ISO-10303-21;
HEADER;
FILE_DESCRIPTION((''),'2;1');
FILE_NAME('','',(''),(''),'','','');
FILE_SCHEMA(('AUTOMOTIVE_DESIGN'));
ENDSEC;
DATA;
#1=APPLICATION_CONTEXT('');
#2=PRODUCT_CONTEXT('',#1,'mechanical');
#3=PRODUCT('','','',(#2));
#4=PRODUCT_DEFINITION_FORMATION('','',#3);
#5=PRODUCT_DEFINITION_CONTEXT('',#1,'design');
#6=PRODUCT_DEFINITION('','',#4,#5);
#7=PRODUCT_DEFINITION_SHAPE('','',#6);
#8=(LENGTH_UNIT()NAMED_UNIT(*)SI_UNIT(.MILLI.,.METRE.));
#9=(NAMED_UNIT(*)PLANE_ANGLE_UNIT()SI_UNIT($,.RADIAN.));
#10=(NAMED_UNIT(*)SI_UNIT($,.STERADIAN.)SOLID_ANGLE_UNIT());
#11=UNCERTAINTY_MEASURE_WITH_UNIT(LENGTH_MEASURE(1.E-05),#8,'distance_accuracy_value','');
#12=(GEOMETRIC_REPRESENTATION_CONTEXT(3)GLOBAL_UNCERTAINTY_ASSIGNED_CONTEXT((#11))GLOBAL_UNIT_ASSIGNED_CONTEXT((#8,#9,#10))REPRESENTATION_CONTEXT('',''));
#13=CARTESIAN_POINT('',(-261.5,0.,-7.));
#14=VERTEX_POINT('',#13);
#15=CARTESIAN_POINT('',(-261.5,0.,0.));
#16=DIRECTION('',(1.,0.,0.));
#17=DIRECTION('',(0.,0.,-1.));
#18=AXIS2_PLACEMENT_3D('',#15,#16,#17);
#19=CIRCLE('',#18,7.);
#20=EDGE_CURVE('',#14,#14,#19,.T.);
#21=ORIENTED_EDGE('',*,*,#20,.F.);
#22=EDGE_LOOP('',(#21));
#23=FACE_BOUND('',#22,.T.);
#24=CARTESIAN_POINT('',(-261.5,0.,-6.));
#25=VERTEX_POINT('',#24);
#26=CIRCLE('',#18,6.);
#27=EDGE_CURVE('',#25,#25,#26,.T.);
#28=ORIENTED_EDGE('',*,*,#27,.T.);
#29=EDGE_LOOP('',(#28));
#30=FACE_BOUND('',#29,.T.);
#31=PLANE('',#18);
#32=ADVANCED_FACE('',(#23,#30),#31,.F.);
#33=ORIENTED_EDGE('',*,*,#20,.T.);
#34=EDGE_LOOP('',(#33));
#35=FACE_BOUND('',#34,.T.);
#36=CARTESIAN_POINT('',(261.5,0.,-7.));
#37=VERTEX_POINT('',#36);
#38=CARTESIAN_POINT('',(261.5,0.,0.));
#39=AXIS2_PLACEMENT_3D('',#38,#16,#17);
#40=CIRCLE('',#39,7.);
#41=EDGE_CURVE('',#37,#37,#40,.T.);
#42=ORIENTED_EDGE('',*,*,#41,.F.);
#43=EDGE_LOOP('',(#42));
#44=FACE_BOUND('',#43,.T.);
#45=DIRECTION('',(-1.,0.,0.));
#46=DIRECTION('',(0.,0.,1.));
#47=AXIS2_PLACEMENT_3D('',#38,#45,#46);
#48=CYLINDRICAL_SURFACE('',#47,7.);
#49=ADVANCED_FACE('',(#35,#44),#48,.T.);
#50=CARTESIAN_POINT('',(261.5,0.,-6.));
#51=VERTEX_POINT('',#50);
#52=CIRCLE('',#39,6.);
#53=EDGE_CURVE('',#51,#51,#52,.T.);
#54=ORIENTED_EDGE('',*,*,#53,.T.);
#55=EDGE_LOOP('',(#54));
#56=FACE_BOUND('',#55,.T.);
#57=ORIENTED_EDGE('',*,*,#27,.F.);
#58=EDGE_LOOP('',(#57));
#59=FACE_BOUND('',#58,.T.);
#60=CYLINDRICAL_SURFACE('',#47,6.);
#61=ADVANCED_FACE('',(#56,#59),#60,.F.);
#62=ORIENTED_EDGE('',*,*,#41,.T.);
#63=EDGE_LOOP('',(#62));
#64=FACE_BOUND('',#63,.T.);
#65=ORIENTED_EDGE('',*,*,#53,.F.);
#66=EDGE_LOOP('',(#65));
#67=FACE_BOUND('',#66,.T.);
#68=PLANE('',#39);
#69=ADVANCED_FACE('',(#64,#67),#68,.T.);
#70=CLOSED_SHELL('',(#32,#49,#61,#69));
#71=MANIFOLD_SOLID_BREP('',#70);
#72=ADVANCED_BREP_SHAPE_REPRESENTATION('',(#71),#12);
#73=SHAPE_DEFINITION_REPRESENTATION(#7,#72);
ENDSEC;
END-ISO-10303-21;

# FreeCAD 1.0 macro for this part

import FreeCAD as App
import Part
import Sketcher
Q = App.Units.Quantity

doc = App.newDocument("Part")
body = doc.addObject("PartDesign::Body", "Body")

sketch1 = doc.addObject("Sketcher::SketchObject", "Sketch")
body.addObject(sketch1)
sketch1.AttachmentSupport = (doc.YZ_Plane, [""])
sketch1.MapMode = "FlatFace"
sketch1.addGeometry(Part.Circle(App.Vector(0, 0, 0), App.Vector(0, 0, 1), 7), False)
sketch1.addGeometry(Part.Circle(App.Vector(0, 0, 0), App.Vector(0, 0, 1), 6), False)
sketch1.addConstraint(Sketcher.Constraint("Coincident", 0, 3, -1, 1))
sketch1.addConstraint(Sketcher.Constraint("Coincident", 1, 3, -1, 1))
sketch1.addConstraint(Sketcher.Constraint("Diameter", 0, Q("14 mm")))
sketch1.addConstraint(Sketcher.Constraint("Diameter", 1, Q("12 mm")))
pad1 = doc.addObject("PartDesign::Pad", "Pad")
body.addObject(pad1)
pad1.Profile = sketch1
pad1.Length = 523
pad1.Midplane = True

doc.recompute()
